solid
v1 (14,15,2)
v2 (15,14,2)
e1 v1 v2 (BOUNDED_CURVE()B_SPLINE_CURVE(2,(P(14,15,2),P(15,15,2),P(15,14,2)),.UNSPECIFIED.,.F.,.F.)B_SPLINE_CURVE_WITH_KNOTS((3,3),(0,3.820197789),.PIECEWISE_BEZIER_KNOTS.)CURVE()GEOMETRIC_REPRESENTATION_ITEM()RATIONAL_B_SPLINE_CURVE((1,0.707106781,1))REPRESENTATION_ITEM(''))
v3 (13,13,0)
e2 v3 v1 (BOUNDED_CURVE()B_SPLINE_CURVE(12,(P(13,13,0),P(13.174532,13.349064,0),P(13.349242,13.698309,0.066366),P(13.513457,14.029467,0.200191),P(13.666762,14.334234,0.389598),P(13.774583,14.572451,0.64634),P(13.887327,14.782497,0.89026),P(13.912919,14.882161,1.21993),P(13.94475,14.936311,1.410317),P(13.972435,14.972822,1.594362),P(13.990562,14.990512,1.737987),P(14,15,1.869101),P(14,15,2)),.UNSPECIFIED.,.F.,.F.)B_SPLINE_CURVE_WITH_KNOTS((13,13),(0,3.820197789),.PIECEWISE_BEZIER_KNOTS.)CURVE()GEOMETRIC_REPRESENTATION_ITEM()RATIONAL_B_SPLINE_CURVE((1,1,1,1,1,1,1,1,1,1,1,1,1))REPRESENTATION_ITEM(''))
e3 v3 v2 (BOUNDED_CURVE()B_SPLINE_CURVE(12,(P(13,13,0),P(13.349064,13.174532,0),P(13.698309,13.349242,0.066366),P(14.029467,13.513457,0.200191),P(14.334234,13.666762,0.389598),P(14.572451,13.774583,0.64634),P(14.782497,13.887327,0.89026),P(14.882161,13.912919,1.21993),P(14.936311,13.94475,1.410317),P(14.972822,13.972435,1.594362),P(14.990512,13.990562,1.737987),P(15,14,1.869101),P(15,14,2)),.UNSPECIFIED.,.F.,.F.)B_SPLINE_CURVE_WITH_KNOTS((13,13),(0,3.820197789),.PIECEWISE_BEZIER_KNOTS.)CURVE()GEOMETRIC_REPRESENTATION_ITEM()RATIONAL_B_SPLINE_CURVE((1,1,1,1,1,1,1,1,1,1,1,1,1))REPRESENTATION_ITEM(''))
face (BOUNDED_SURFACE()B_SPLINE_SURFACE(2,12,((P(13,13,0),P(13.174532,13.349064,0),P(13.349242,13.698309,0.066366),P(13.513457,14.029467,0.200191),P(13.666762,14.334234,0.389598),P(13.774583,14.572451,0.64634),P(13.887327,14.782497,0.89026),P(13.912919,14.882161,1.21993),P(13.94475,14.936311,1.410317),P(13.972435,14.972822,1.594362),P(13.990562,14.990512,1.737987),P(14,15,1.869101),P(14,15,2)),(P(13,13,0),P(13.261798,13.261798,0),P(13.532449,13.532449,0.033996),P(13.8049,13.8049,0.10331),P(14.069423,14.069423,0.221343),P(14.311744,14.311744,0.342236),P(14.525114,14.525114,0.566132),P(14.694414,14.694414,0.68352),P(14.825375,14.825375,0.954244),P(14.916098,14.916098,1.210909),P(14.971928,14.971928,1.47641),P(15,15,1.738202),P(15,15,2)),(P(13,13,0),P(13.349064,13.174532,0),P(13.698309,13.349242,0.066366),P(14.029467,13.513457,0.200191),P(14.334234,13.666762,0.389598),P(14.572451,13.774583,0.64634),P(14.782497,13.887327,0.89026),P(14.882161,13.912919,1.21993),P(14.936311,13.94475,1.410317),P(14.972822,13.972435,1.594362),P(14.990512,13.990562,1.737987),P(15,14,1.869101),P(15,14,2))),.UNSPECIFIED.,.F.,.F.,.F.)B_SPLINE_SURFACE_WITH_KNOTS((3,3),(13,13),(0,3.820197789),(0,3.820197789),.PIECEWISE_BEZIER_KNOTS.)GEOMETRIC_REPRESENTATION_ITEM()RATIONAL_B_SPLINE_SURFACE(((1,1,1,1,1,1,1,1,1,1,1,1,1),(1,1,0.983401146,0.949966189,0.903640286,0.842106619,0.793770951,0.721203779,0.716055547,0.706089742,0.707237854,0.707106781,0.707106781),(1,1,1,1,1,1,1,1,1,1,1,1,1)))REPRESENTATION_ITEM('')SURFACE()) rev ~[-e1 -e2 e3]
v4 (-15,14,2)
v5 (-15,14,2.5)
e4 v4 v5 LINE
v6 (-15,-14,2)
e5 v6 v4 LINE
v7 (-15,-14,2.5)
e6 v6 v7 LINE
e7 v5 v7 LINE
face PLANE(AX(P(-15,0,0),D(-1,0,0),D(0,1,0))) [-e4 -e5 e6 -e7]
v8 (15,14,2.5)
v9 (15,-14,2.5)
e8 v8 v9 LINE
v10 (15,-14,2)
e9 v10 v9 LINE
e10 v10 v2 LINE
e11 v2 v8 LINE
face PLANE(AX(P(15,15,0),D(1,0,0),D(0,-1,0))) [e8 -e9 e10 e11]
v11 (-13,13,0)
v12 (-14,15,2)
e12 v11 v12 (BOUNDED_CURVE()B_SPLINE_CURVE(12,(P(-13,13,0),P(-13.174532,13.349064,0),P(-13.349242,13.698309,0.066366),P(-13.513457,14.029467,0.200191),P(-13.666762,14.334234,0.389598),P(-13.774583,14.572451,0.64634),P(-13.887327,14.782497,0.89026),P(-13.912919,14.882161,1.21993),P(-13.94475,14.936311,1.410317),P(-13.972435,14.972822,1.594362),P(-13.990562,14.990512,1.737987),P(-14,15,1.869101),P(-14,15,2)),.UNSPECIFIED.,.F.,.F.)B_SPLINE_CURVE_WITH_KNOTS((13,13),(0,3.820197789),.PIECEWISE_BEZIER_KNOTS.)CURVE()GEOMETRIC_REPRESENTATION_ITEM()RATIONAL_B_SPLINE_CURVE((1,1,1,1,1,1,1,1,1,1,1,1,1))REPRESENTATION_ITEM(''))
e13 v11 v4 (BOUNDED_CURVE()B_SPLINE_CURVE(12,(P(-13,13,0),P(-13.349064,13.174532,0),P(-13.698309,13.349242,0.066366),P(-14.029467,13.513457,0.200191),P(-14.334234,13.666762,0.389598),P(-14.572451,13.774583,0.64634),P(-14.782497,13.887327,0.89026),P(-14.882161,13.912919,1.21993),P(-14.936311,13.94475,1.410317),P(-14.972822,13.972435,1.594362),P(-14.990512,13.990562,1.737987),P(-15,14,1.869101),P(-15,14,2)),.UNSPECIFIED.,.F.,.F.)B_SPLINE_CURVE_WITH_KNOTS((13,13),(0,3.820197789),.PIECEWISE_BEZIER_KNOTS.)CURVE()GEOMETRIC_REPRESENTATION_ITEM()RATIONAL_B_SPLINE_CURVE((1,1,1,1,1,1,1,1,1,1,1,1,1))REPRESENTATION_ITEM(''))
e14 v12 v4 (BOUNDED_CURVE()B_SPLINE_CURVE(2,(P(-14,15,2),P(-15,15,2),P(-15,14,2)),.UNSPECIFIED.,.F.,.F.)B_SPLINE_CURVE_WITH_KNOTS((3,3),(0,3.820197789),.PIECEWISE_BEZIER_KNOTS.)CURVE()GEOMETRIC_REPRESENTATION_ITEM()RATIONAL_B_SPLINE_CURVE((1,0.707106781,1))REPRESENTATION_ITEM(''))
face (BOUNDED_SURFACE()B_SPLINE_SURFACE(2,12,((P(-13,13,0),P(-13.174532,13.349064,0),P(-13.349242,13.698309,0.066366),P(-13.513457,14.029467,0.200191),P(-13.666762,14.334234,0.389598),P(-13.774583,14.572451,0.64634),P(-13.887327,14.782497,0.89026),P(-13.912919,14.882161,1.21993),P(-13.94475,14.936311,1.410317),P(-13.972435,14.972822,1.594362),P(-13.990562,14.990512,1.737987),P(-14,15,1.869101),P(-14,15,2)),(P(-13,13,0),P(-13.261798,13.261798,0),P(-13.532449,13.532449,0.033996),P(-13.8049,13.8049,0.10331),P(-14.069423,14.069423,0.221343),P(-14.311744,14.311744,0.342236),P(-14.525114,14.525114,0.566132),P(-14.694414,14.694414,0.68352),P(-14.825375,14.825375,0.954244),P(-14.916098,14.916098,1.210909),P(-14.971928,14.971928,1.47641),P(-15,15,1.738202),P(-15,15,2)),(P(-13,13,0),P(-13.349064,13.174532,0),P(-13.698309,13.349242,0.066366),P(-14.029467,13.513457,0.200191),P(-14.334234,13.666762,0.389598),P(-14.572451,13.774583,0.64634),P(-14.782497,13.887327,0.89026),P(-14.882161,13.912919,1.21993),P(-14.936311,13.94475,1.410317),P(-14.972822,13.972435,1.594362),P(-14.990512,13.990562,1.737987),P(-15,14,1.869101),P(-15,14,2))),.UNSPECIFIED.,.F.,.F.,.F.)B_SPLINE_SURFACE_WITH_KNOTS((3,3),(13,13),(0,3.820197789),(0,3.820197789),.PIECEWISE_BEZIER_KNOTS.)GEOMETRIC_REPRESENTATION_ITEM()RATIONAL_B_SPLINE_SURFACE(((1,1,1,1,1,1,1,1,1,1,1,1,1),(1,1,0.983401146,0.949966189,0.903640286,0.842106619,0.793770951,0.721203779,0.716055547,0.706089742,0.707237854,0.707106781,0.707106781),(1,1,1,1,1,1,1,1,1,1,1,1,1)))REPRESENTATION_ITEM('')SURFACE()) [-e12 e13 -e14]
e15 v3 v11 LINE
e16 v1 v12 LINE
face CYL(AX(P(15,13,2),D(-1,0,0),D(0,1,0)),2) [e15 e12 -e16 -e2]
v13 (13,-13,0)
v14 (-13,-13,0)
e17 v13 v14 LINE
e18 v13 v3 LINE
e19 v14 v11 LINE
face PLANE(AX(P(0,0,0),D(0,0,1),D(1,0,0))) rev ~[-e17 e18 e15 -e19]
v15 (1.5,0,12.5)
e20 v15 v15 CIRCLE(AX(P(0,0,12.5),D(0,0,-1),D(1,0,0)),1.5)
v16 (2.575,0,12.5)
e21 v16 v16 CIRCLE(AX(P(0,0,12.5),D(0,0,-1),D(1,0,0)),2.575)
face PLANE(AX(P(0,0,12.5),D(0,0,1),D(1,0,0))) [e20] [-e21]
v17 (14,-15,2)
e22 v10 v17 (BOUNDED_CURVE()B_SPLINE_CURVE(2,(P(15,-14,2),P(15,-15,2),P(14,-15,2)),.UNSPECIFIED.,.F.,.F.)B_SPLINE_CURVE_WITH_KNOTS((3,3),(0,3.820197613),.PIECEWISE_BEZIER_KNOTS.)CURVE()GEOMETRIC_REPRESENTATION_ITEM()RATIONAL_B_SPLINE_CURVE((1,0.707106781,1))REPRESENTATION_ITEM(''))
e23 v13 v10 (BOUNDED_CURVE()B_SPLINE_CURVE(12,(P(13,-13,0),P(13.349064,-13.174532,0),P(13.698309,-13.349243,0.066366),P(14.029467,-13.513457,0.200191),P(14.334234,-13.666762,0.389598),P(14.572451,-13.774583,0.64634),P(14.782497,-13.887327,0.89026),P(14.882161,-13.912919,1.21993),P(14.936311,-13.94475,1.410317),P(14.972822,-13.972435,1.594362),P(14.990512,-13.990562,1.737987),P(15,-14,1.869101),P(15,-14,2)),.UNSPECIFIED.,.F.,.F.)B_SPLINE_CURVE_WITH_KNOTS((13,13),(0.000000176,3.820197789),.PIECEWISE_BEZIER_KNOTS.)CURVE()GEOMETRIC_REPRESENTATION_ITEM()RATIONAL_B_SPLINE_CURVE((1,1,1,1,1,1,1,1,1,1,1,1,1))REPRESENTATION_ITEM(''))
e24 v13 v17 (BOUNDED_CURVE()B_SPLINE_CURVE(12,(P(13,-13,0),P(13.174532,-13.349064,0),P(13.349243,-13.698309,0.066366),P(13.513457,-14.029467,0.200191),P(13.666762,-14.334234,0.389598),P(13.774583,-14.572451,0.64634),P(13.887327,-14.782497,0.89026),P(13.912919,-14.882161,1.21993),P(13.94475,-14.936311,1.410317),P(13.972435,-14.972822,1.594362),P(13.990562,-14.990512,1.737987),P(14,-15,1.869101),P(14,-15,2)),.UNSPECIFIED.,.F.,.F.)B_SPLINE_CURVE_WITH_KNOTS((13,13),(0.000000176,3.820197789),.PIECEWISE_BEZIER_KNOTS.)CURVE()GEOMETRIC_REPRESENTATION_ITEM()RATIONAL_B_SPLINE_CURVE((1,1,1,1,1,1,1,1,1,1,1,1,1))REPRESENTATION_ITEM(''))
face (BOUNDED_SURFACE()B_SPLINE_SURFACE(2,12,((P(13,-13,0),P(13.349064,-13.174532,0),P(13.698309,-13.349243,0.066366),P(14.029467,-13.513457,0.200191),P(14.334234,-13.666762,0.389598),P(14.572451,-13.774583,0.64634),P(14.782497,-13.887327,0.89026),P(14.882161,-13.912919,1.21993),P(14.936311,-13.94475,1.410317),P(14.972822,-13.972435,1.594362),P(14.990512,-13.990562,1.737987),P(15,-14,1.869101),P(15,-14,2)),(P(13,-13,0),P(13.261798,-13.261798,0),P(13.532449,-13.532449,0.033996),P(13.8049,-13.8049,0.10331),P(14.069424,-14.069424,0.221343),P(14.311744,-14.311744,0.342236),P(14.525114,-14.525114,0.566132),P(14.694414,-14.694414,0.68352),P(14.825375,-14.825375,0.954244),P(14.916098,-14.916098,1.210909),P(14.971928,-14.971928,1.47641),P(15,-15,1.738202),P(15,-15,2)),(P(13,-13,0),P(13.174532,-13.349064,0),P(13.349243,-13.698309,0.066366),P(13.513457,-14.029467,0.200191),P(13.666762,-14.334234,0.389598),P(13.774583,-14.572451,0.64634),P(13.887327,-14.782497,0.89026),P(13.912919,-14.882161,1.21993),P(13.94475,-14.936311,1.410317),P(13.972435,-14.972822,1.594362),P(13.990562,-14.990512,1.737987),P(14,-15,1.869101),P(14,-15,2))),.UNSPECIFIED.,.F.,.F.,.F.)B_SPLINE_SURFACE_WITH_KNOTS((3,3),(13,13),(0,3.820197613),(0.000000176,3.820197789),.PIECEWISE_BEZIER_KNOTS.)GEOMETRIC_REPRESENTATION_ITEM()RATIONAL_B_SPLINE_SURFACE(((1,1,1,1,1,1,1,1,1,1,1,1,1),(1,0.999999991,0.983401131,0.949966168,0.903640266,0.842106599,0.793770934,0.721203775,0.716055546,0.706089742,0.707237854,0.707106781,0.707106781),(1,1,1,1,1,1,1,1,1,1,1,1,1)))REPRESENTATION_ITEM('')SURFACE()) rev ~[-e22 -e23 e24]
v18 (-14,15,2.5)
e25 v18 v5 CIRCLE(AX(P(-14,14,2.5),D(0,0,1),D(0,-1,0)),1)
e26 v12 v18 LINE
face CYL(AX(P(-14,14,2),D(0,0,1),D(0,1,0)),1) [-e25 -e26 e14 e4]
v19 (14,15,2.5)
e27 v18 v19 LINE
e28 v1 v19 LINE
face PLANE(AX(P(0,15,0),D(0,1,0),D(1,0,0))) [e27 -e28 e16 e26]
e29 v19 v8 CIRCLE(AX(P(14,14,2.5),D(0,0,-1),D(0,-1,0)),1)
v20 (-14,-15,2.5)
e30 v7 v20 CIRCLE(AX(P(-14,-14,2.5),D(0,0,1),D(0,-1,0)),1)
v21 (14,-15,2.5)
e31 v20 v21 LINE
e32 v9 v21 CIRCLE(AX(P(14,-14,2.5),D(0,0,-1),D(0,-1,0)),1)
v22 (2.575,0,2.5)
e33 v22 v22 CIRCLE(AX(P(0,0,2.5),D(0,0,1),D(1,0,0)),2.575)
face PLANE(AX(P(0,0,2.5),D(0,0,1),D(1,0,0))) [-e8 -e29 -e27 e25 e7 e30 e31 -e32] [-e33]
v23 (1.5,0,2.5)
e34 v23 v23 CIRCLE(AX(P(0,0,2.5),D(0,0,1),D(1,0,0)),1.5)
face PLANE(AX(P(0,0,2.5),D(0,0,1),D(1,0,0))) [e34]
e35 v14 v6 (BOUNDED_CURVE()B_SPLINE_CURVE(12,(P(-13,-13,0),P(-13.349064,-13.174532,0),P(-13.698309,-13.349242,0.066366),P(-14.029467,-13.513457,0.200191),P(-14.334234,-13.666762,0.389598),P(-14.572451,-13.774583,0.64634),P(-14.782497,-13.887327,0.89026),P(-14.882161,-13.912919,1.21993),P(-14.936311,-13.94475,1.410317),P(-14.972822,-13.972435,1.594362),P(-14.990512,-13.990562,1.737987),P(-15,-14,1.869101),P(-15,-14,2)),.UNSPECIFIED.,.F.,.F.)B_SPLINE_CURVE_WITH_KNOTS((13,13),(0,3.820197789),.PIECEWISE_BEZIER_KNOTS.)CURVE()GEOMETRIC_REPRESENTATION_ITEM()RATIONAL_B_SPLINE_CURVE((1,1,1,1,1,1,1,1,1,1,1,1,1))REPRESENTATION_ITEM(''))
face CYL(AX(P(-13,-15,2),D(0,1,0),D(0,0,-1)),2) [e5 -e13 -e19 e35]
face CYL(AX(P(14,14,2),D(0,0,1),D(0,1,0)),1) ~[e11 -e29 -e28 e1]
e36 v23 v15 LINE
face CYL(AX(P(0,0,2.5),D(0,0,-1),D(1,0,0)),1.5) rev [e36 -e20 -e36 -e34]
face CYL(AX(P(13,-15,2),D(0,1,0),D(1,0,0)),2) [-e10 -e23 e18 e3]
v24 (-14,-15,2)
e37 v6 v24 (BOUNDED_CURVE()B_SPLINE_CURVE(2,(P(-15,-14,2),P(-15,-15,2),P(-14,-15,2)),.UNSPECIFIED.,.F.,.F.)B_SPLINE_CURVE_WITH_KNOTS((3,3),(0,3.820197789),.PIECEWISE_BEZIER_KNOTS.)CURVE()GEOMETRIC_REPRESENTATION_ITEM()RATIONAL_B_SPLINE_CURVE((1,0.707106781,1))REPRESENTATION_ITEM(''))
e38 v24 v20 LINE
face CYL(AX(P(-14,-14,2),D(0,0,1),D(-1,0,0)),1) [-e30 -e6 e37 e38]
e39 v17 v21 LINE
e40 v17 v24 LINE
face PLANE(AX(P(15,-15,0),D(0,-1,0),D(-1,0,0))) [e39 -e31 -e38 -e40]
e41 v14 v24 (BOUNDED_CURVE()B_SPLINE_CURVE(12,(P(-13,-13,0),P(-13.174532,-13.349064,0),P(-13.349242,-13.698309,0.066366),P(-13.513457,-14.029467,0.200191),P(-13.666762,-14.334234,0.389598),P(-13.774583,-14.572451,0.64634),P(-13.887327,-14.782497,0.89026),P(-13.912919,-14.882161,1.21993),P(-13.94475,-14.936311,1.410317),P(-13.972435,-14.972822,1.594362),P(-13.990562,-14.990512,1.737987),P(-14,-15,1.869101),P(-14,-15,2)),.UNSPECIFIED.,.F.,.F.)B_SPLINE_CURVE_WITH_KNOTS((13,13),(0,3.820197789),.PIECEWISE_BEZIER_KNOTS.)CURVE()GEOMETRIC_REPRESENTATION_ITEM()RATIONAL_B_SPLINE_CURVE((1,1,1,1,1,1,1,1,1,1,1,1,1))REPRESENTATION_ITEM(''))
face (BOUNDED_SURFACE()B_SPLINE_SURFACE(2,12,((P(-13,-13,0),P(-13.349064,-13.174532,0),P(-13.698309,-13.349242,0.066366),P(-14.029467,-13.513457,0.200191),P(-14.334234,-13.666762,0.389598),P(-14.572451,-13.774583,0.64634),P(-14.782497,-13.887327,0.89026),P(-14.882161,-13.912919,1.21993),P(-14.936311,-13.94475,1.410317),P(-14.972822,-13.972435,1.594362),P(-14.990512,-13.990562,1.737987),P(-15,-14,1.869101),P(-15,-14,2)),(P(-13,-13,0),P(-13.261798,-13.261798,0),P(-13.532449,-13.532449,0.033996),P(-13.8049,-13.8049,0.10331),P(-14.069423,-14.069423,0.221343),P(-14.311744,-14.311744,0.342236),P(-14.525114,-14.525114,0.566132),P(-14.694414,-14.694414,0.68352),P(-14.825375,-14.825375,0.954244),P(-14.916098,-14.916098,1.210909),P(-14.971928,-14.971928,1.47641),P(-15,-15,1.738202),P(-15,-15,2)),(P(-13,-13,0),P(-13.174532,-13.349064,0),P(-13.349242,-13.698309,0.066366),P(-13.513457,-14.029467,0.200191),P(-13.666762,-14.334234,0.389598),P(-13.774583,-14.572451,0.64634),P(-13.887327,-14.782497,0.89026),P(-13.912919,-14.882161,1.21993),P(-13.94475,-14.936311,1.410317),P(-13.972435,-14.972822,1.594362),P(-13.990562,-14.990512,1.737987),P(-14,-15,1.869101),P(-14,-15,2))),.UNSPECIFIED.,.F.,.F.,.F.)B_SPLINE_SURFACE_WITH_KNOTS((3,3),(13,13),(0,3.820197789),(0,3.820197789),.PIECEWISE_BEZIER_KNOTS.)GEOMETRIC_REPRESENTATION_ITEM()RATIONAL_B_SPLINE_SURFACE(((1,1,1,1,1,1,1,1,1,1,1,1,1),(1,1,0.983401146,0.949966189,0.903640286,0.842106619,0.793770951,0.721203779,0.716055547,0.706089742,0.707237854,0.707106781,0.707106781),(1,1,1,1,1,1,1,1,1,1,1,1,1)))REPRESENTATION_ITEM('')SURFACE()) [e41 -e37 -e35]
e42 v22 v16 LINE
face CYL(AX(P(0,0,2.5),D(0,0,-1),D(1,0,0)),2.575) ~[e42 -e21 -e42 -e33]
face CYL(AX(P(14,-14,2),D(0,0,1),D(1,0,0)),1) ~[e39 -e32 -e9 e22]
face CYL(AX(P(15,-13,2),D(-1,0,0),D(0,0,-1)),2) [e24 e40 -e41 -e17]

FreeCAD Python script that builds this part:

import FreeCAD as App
import Part
import Sketcher

V = App.Vector


def edges_at(feature, points):
    """Names of the edges that pass closest to the given points."""
    edges = feature.Shape.Edges
    near = lambda p: min(range(len(edges)), key=lambda i: edges[i].distToShape(Part.Vertex(*p))[0])
    return sorted({f"Edge{near(p) + 1}" for p in points})


def add_polygon(sketch, points):
    """Adds a closed chain of lines whose ends are joined by coincident constraints."""
    first, n = sketch.GeometryCount, len(points)
    for a, b in zip(points, points[1:] + points[:1]):
        sketch.addGeometry(Part.LineSegment(App.Vector(*a, 0), App.Vector(*b, 0)), False)
    for i in range(n):
        sketch.addConstraint(Sketcher.Constraint("Coincident", first + i, 2, first + (i + 1) % n, 1))

doc = App.newDocument("Part")
params = doc.addObject("Spreadsheet::Sheet", "Params")
for row, (alias, value) in enumerate([
    ("sketch1_width", "30 mm"),
    ("pad1_length", "2.5 mm"),
    ("sketch2_diameter", "3 mm"),
    ("sketch2_diameter2", "5.15 mm"),
    ("pad2_length", "10 mm"),
    ("fillet_radius", "2 mm"),
    ("fillet2_radius", "1 mm"),
], start=1):
    params.set(f"A{row}", alias)
    params.set(f"B{row}", "=" + value)
    params.setAlias(f"B{row}", alias)

body = doc.addObject("PartDesign::Body", "Body")

sketch1 = body.newObject("Sketcher::SketchObject", "Sketch")
sketch1.AttachmentSupport = (doc.getObject("XY_Plane"), [""])
sketch1.MapMode = "FlatFace"
add_polygon(sketch1, [(15, 15), (-15, 15), (-15, -15), (15, -15)])
sketch1.addConstraint([
    Sketcher.Constraint("Horizontal", 0),
    Sketcher.Constraint("Vertical", 1),
    Sketcher.Constraint("Horizontal", 2),
    Sketcher.Constraint("Vertical", 3),
    Sketcher.Constraint("Symmetric", 0, 2, 2, 2, -1, 1),
    Sketcher.Constraint("Equal", 2, 1),
    Sketcher.Constraint("DistanceX", 0, 2, 0, 1, 30.0),
])
sketch1.setExpression("Constraints[10]", "Params.sketch1_width")
pad1 = body.newObject("PartDesign::Pad", "Pad")
pad1.Profile = sketch1
pad1.setExpression("Length", "Params.pad1_length")

sketch2 = body.newObject("Sketcher::SketchObject", "Sketch001")
sketch2.AttachmentSupport = (doc.getObject("XY_Plane"), [""])
sketch2.MapMode = "FlatFace"
sketch2.AttachmentOffset = App.Placement(V(0, 0, 2.5), App.Rotation())
sketch2.addGeometry([
    Part.Circle(V(0, 0, 0), V(0, 0, 1), 2.6),
    Part.Circle(V(0, 0, 0), V(0, 0, 1), 1.5),
], False)
sketch2.addConstraint([
    Sketcher.Constraint("Coincident", 0, 3, -1, 1),
    Sketcher.Constraint("Coincident", 1, 3, -1, 1),
    Sketcher.Constraint("Diameter", 1, 3.0),
    Sketcher.Constraint("Diameter", 0, 5.15),
])
sketch2.setExpression("Constraints[2]", "Params.sketch2_diameter")
sketch2.setExpression("Constraints[3]", "Params.sketch2_diameter2")
pad2 = body.newObject("PartDesign::Pad", "Pad001")
pad2.Profile = sketch2
pad2.setExpression("Length", "Params.pad2_length")
doc.recompute()

fillet = body.newObject("PartDesign::Fillet", "Fillet")
fillet.Base = (pad2, edges_at(pad2, [
    (15, 0, 0),
    (0, 15, 0),
    (-15, 0, 0),
    (0, -15, 0),
]))
fillet.setExpression("Radius", "Params.fillet_radius")
doc.recompute()

fillet2 = body.newObject("PartDesign::Fillet", "Fillet001")
fillet2.Base = (fillet, edges_at(fillet, [
    (15, -15, 2.25),
    (14.414, -14.414, 0.586),
    (15, 15, 2.25),
    (14.414, 14.414, 0.586),
    (-15, 15, 2.25),
    (-14.414, 14.414, 0.586),
    (-15, -15, 2.25),
    (-14.414, -14.414, 0.586),
]))
fillet2.setExpression("Radius", "Params.fillet2_radius")

doc.recompute()
